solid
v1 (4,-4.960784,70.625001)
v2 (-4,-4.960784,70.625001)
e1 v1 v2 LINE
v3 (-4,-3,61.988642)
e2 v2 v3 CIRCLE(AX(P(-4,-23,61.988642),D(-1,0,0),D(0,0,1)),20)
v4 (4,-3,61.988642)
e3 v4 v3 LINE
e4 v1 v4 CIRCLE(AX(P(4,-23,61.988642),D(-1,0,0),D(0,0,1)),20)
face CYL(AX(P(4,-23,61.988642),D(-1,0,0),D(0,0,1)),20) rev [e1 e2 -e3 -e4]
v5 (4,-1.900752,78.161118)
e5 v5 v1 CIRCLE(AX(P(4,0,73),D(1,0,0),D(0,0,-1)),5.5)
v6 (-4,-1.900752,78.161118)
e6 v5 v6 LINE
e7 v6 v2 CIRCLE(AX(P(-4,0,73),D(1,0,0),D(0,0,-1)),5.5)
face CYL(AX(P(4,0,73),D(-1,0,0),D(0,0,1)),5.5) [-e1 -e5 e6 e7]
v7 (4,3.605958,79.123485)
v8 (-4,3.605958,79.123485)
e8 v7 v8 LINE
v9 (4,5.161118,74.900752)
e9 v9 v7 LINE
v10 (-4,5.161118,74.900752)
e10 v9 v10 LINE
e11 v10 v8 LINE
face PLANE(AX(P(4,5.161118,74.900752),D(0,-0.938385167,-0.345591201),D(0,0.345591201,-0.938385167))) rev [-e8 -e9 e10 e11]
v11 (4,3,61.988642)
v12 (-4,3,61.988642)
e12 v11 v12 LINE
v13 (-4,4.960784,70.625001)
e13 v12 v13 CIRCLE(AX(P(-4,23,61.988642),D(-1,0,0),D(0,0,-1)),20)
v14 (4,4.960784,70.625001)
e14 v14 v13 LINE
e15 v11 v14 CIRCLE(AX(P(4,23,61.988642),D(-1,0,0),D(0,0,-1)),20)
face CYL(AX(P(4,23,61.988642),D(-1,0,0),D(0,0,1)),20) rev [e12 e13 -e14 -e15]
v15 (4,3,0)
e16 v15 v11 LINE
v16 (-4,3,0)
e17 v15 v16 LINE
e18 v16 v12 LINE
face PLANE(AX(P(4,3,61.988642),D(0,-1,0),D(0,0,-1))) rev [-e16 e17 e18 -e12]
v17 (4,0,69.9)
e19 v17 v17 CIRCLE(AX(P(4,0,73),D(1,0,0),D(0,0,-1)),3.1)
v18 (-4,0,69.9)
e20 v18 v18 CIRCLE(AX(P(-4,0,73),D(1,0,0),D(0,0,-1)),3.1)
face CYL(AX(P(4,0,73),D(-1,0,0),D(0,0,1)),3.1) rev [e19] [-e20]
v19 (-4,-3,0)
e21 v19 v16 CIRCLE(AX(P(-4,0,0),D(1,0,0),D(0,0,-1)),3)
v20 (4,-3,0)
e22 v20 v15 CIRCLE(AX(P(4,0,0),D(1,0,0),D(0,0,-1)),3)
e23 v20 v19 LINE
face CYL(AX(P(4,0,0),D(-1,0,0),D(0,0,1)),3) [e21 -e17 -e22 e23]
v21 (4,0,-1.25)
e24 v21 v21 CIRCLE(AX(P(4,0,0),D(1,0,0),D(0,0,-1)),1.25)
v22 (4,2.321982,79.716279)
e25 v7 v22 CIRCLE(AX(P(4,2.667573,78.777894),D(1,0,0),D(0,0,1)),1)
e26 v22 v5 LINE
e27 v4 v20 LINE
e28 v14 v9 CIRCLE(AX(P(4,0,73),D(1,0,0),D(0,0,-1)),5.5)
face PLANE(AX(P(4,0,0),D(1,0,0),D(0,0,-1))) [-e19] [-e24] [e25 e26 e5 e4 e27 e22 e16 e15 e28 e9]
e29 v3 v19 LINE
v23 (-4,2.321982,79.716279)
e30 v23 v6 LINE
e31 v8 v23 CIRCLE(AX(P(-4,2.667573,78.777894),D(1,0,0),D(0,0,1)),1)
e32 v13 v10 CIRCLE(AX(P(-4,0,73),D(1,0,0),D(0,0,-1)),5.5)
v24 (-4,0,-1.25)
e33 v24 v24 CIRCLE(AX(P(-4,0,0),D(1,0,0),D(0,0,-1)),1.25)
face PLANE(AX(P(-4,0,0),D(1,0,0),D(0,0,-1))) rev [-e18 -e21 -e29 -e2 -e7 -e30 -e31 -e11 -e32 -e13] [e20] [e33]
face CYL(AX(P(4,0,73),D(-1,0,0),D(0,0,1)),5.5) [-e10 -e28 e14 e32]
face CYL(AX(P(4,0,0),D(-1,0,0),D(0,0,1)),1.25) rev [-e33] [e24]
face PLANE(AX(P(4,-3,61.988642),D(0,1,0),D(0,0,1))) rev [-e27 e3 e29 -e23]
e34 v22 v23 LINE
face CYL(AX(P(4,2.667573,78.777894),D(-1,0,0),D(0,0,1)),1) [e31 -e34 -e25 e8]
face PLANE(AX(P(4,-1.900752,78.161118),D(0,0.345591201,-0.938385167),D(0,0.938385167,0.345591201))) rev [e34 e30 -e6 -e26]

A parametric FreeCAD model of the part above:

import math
import FreeCAD as App
import Part
import Sketcher
Q = App.Units.Quantity

doc = App.newDocument("Part")
body = doc.addObject("PartDesign::Body", "Body")

# Sketch on YZ plane
sketch1 = doc.addObject("Sketcher::SketchObject", "Sketch")
body.addObject(sketch1)
sketch1.AttachmentSupport = (doc.YZ_Plane, [""])
sketch1.MapMode = "FlatFace"
sketch1.addGeometry([
    Part.LineSegment(App.Vector(3, 0, 0), App.Vector(3, 61.988642, 0)),  # 0
    Part.ArcOfCircle(Part.Circle(App.Vector(23, 61.988642, 0), App.Vector(0, 0, 1), 20), math.radians(154.417013), math.radians(180)),  # 1
    Part.ArcOfCircle(Part.Circle(App.Vector(0, 73, 0), App.Vector(0, 0, 1), 5.5), math.radians(-25.582987), math.radians(20.217889)),  # 2
    Part.LineSegment(App.Vector(5.161118, 74.900752, 0), App.Vector(3.605958, 79.123485, 0)),  # 3
    Part.ArcOfCircle(Part.Circle(App.Vector(2.667573, 78.777894, 0), App.Vector(0, 0, 1), 1), math.radians(20.217889), math.radians(110.217889)),  # 4
    Part.LineSegment(App.Vector(2.321982, 79.716279, 0), App.Vector(-1.900752, 78.161118, 0)),  # 5
    Part.ArcOfCircle(Part.Circle(App.Vector(0, 73, 0), App.Vector(0, 0, 1), 5.5), math.radians(110.217889), math.radians(205.582987)),  # 6
    Part.ArcOfCircle(Part.Circle(App.Vector(-23, 61.988642, 0), App.Vector(0, 0, 1), 20), math.radians(0), math.radians(25.582987)),  # 7
    Part.LineSegment(App.Vector(-3, 61.988642, 0), App.Vector(-3, 0, 0)),  # 8
    Part.ArcOfCircle(Part.Circle(App.Vector(0, 0, 0), App.Vector(0, 0, 1), 3), math.radians(180), math.radians(360)),  # 9
    Part.Circle(App.Vector(0, 0, 0), App.Vector(0, 0, 1), 1.25),  # 10
    Part.Circle(App.Vector(0, 73, 0), App.Vector(0, 0, 1), 3.1),  # 11
], False)
sketch1.addConstraint([
    Sketcher.Constraint("Tangent", 0, 2, 1, 2),
    Sketcher.Constraint("Tangent", 1, 1, 2, 1),
    Sketcher.Constraint("Tangent", 2, 2, 3, 1),
    Sketcher.Constraint("Tangent", 3, 2, 4, 1),
    Sketcher.Constraint("Tangent", 4, 2, 5, 1),
    Sketcher.Constraint("Tangent", 5, 2, 6, 1),
    Sketcher.Constraint("Tangent", 6, 2, 7, 2),
    Sketcher.Constraint("Tangent", 7, 1, 8, 1),
    Sketcher.Constraint("Tangent", 8, 2, 9, 1),
    Sketcher.Constraint("Tangent", 9, 2, 0, 1),
    Sketcher.Constraint("Vertical", 0),
    Sketcher.Constraint("Vertical", 8),
    Sketcher.Constraint("Coincident", 9, 3, -1, 1),
    Sketcher.Constraint("Coincident", 10, 3, -1, 1),
    Sketcher.Constraint("Coincident", 6, 3, 2, 3),
    Sketcher.Constraint("Coincident", 11, 3, 2, 3),
    Sketcher.Constraint("Equal", 2, 6),
    Sketcher.Constraint("Equal", 1, 7),
    Sketcher.Constraint("PointOnObject", 2, 3, -2),
    Sketcher.Constraint("Perpendicular", 3, 5),
    Sketcher.Constraint("Radius", 1, Q("20 mm")),
    Sketcher.Constraint("Radius", 4, Q("1 mm")),
    Sketcher.Constraint("Radius", 9, Q("3 mm")),
    Sketcher.Constraint("Diameter", 10, Q("2.5 mm")),
    Sketcher.Constraint("Diameter", 11, Q("6.2 mm")),
    Sketcher.Constraint("Radius", 2, Q("5.5 mm")),
    Sketcher.Constraint("DistanceY", -1, 1, 2, 3, Q("73 mm")),
    Sketcher.Constraint("DistanceX", -1, 1, 2, 2, Q("5.161118 mm")),
])
pad1 = doc.addObject("PartDesign::Pad", "Pad")
body.addObject(pad1)
pad1.Profile = sketch1
pad1.Length = 8
pad1.Midplane = True

doc.recompute()
